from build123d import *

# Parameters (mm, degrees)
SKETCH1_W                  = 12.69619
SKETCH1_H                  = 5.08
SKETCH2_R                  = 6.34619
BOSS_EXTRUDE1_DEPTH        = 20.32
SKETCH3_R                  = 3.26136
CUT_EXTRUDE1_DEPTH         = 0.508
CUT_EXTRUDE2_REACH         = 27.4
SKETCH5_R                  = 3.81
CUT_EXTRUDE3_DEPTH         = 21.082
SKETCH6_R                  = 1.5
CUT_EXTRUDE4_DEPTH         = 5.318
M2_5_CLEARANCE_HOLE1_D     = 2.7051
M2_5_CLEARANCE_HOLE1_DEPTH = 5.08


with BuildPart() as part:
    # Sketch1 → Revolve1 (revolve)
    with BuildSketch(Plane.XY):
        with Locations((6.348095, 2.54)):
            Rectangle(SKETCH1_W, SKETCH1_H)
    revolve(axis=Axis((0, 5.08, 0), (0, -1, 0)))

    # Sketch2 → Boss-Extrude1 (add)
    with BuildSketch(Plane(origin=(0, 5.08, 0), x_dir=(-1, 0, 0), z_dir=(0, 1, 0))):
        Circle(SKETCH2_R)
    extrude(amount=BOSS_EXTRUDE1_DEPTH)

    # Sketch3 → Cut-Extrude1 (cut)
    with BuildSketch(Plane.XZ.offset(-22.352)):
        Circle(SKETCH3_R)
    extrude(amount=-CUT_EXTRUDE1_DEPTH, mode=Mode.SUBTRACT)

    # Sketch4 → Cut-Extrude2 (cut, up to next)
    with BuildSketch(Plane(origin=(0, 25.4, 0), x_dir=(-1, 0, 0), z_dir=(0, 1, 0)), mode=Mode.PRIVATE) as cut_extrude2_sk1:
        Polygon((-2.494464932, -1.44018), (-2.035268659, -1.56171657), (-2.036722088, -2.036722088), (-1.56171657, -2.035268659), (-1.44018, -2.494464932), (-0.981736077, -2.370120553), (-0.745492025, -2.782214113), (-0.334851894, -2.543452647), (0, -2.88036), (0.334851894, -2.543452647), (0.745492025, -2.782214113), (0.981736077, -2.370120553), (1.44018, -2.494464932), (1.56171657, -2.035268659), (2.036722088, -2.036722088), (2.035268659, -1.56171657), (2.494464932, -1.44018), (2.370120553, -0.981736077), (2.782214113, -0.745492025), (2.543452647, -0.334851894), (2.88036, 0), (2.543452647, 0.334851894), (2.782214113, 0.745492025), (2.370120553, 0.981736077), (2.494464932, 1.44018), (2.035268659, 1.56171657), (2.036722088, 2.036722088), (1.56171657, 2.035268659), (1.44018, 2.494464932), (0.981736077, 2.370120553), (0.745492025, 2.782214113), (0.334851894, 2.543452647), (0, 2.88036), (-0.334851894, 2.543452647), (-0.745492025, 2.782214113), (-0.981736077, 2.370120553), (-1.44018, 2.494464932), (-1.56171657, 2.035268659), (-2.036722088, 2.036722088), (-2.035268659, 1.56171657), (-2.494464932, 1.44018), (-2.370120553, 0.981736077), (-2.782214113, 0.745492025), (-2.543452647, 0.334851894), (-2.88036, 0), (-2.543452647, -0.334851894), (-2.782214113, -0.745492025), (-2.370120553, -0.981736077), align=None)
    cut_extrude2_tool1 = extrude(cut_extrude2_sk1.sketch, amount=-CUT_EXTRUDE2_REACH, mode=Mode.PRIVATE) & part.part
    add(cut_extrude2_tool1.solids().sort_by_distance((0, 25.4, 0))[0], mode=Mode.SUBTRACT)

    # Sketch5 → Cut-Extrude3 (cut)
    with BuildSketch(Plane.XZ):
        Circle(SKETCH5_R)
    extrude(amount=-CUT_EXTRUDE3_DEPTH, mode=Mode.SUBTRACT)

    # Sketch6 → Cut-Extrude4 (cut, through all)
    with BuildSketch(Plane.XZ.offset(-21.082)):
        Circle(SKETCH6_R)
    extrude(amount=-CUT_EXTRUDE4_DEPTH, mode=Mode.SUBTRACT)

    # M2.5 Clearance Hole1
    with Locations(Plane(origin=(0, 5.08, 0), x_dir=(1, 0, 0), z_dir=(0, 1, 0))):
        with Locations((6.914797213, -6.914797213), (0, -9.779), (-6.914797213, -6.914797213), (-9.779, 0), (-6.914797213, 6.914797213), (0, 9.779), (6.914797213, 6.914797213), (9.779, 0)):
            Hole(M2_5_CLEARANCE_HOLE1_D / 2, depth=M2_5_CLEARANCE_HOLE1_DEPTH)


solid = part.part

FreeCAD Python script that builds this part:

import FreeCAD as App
import Part
import Sketcher

V = App.Vector
Q = App.Units.Quantity

doc = App.newDocument("Part")
body = doc.addObject("PartDesign::Body", "Body")

sketch1 = body.newObject("Sketcher::SketchObject", "Sketch")
sketch1.AttachmentSupport = (doc.getObject("XY_Plane"), [""])
sketch1.MapMode = "FlatFace"
sketch1.addGeometry(Part.LineSegment(V(0, 5.08, 0), V(0, 0, 0)), False)
sketch1.addGeometry(Part.LineSegment(V(0, 0, 0), V(12.69619, 0, 0)), False)
sketch1.addGeometry(Part.LineSegment(V(12.69619, 0, 0), V(12.69619, 5.08, 0)), False)
sketch1.addGeometry(Part.LineSegment(V(12.69619, 5.08, 0), V(0, 5.08, 0)), False)
sketch1.addConstraint(Sketcher.Constraint("Coincident", 0, 2, 1, 1))
sketch1.addConstraint(Sketcher.Constraint("Coincident", 1, 2, 2, 1))
sketch1.addConstraint(Sketcher.Constraint("Coincident", 2, 2, 3, 1))
sketch1.addConstraint(Sketcher.Constraint("Coincident", 3, 2, 0, 1))
sketch1.addConstraint(Sketcher.Constraint("Vertical", 0))
sketch1.addConstraint(Sketcher.Constraint("Horizontal", 1))
sketch1.addConstraint(Sketcher.Constraint("Vertical", 2))
sketch1.addConstraint(Sketcher.Constraint("Horizontal", 3))
sketch1.addConstraint(Sketcher.Constraint("Coincident", 0, 2, -1, 1))
sketch1.addConstraint(Sketcher.Constraint("DistanceY", 0, 2, 0, 1, Q("0.2 in")))
sketch1.addConstraint(Sketcher.Constraint("DistanceX", 1, 1, 1, 2, Q("12.69619 mm")))
revolution = body.newObject("PartDesign::Revolution", "Revolution")
revolution.Profile = sketch1
revolution.ReferenceAxis = (sketch1, ["V_Axis"])
revolution.Angle = 360

sketch2 = body.newObject("Sketcher::SketchObject", "Sketch001")
sketch2.AttachmentSupport = (doc.getObject("XZ_Plane"), [""])
sketch2.MapMode = "FlatFace"
sketch2.AttachmentOffset = App.Placement(V(0, 0, -0.2 * 25.4), App.Rotation())
sketch2.addGeometry(Part.Circle(V(0, 0, 0), V(0, 0, 1), 6.34619), False)
sketch2.addConstraint(Sketcher.Constraint("Coincident", 0, 3, -1, 1))
sketch2.addConstraint(Sketcher.Constraint("Diameter", 0, Q("0.4997 in")))
pad1 = body.newObject("PartDesign::Pad", "Pad")
pad1.Profile = sketch2
pad1.Length = Q("0.8 in")
pad1.Reversed = True

sketch3 = body.newObject("Sketcher::SketchObject", "Sketch002")
sketch3.AttachmentSupport = (doc.getObject("XZ_Plane"), [""])
sketch3.MapMode = "FlatFace"
sketch3.AttachmentOffset = App.Placement(V(0, 0, -0.88 * 25.4), App.Rotation())
sketch3.addGeometry(Part.Circle(V(0, 0, 0), V(0, 0, 1), 3.26136), False)
sketch3.addConstraint(Sketcher.Constraint("Coincident", 0, 3, -1, 1))
sketch3.addConstraint(Sketcher.Constraint("Diameter", 0, Q("0.2568 in")))
pocket1 = body.newObject("PartDesign::Pocket", "Pocket")
pocket1.Profile = sketch3
pocket1.Length = Q("0.02 in")

sketch4 = body.newObject("Sketcher::SketchObject", "Sketch003")
sketch4.AttachmentSupport = (doc.getObject("XZ_Plane"), [""])
sketch4.MapMode = "FlatFace"
sketch4.AttachmentOffset = App.Placement(V(0, 0, -1 * 25.4), App.Rotation())
sketch4.addGeometry(Part.LineSegment(V(2.494465, -1.44018, 0), V(2.035269, -1.561717, 0)), False)
sketch4.addGeometry(Part.LineSegment(V(2.035269, -1.561717, 0), V(2.036722, -2.036722, 0)), False)
sketch4.addGeometry(Part.LineSegment(V(2.036722, -2.036722, 0), V(1.561717, -2.035269, 0)), False)
sketch4.addGeometry(Part.LineSegment(V(1.561717, -2.035269, 0), V(1.44018, -2.494465, 0)), False)
sketch4.addGeometry(Part.LineSegment(V(1.44018, -2.494465, 0), V(0.981736, -2.370121, 0)), False)
sketch4.addGeometry(Part.LineSegment(V(0.981736, -2.370121, 0), V(0.745492, -2.782214, 0)), False)
sketch4.addGeometry(Part.LineSegment(V(0.745492, -2.782214, 0), V(0.334852, -2.543453, 0)), False)
sketch4.addGeometry(Part.LineSegment(V(0.334852, -2.543453, 0), V(0, -2.88036, 0)), False)
sketch4.addGeometry(Part.LineSegment(V(0, -2.88036, 0), V(-0.334852, -2.543453, 0)), False)
sketch4.addGeometry(Part.LineSegment(V(-0.334852, -2.543453, 0), V(-0.745492, -2.782214, 0)), False)
sketch4.addGeometry(Part.LineSegment(V(-0.745492, -2.782214, 0), V(-0.981736, -2.370121, 0)), False)
sketch4.addGeometry(Part.LineSegment(V(-0.981736, -2.370121, 0), V(-1.44018, -2.494465, 0)), False)
sketch4.addGeometry(Part.LineSegment(V(-1.44018, -2.494465, 0), V(-1.561717, -2.035269, 0)), False)
sketch4.addGeometry(Part.LineSegment(V(-1.561717, -2.035269, 0), V(-2.036722, -2.036722, 0)), False)
sketch4.addGeometry(Part.LineSegment(V(-2.036722, -2.036722, 0), V(-2.035269, -1.561717, 0)), False)
sketch4.addGeometry(Part.LineSegment(V(-2.035269, -1.561717, 0), V(-2.494465, -1.44018, 0)), False)
sketch4.addGeometry(Part.LineSegment(V(-2.494465, -1.44018, 0), V(-2.370121, -0.981736, 0)), False)
sketch4.addGeometry(Part.LineSegment(V(-2.370121, -0.981736, 0), V(-2.782214, -0.745492, 0)), False)
sketch4.addGeometry(Part.LineSegment(V(-2.782214, -0.745492, 0), V(-2.543453, -0.334852, 0)), False)
sketch4.addGeometry(Part.LineSegment(V(-2.543453, -0.334852, 0), V(-2.88036, 0, 0)), False)
sketch4.addGeometry(Part.LineSegment(V(-2.88036, 0, 0), V(-2.543453, 0.334852, 0)), False)
sketch4.addGeometry(Part.LineSegment(V(-2.543453, 0.334852, 0), V(-2.782214, 0.745492, 0)), False)
sketch4.addGeometry(Part.LineSegment(V(-2.782214, 0.745492, 0), V(-2.370121, 0.981736, 0)), False)
sketch4.addGeometry(Part.LineSegment(V(-2.370121, 0.981736, 0), V(-2.494465, 1.44018, 0)), False)
sketch4.addGeometry(Part.LineSegment(V(-2.494465, 1.44018, 0), V(-2.035269, 1.561717, 0)), False)
sketch4.addGeometry(Part.LineSegment(V(-2.035269, 1.561717, 0), V(-2.036722, 2.036722, 0)), False)
sketch4.addGeometry(Part.LineSegment(V(-2.036722, 2.036722, 0), V(-1.561717, 2.035269, 0)), False)
sketch4.addGeometry(Part.LineSegment(V(-1.561717, 2.035269, 0), V(-1.44018, 2.494465, 0)), False)
sketch4.addGeometry(Part.LineSegment(V(-1.44018, 2.494465, 0), V(-0.981736, 2.370121, 0)), False)
sketch4.addGeometry(Part.LineSegment(V(-0.981736, 2.370121, 0), V(-0.745492, 2.782214, 0)), False)
sketch4.addGeometry(Part.LineSegment(V(-0.745492, 2.782214, 0), V(-0.334852, 2.543453, 0)), False)
sketch4.addGeometry(Part.LineSegment(V(-0.334852, 2.543453, 0), V(0, 2.88036, 0)), False)
sketch4.addGeometry(Part.LineSegment(V(0, 2.88036, 0), V(0.334852, 2.543453, 0)), False)
sketch4.addGeometry(Part.LineSegment(V(0.334852, 2.543453, 0), V(0.745492, 2.782214, 0)), False)
sketch4.addGeometry(Part.LineSegment(V(0.745492, 2.782214, 0), V(0.981736, 2.370121, 0)), False)
sketch4.addGeometry(Part.LineSegment(V(0.981736, 2.370121, 0), V(1.44018, 2.494465, 0)), False)
sketch4.addGeometry(Part.LineSegment(V(1.44018, 2.494465, 0), V(1.561717, 2.035269, 0)), False)
sketch4.addGeometry(Part.LineSegment(V(1.561717, 2.035269, 0), V(2.036722, 2.036722, 0)), False)
sketch4.addGeometry(Part.LineSegment(V(2.036722, 2.036722, 0), V(2.035269, 1.561717, 0)), False)
sketch4.addGeometry(Part.LineSegment(V(2.035269, 1.561717, 0), V(2.494465, 1.44018, 0)), False)
sketch4.addGeometry(Part.LineSegment(V(2.494465, 1.44018, 0), V(2.370121, 0.981736, 0)), False)
sketch4.addGeometry(Part.LineSegment(V(2.370121, 0.981736, 0), V(2.782214, 0.745492, 0)), False)
sketch4.addGeometry(Part.LineSegment(V(2.782214, 0.745492, 0), V(2.543453, 0.334852, 0)), False)
sketch4.addGeometry(Part.LineSegment(V(2.543453, 0.334852, 0), V(2.88036, 0, 0)), False)
sketch4.addGeometry(Part.LineSegment(V(2.88036, 0, 0), V(2.543453, -0.334852, 0)), False)
sketch4.addGeometry(Part.LineSegment(V(2.543453, -0.334852, 0), V(2.782214, -0.745492, 0)), False)
sketch4.addGeometry(Part.LineSegment(V(2.782214, -0.745492, 0), V(2.370121, -0.981736, 0)), False)
sketch4.addGeometry(Part.LineSegment(V(2.370121, -0.981736, 0), V(2.494465, -1.44018, 0)), False)
sketch4.addConstraint(Sketcher.Constraint("Coincident", 0, 2, 1, 1))
sketch4.addConstraint(Sketcher.Constraint("Coincident", 1, 2, 2, 1))
sketch4.addConstraint(Sketcher.Constraint("Coincident", 2, 2, 3, 1))
sketch4.addConstraint(Sketcher.Constraint("Coincident", 3, 2, 4, 1))
sketch4.addConstraint(Sketcher.Constraint("Coincident", 4, 2, 5, 1))
sketch4.addConstraint(Sketcher.Constraint("Coincident", 5, 2, 6, 1))
sketch4.addConstraint(Sketcher.Constraint("Coincident", 6, 2, 7, 1))
sketch4.addConstraint(Sketcher.Constraint("Coincident", 7, 2, 8, 1))
sketch4.addConstraint(Sketcher.Constraint("Coincident", 8, 2, 9, 1))
sketch4.addConstraint(Sketcher.Constraint("Coincident", 9, 2, 10, 1))
sketch4.addConstraint(Sketcher.Constraint("Coincident", 10, 2, 11, 1))
sketch4.addConstraint(Sketcher.Constraint("Coincident", 11, 2, 12, 1))
sketch4.addConstraint(Sketcher.Constraint("Coincident", 12, 2, 13, 1))
sketch4.addConstraint(Sketcher.Constraint("Coincident", 13, 2, 14, 1))
sketch4.addConstraint(Sketcher.Constraint("Coincident", 14, 2, 15, 1))
sketch4.addConstraint(Sketcher.Constraint("Coincident", 15, 2, 16, 1))
sketch4.addConstraint(Sketcher.Constraint("Coincident", 16, 2, 17, 1))
sketch4.addConstraint(Sketcher.Constraint("Coincident", 17, 2, 18, 1))
sketch4.addConstraint(Sketcher.Constraint("Coincident", 18, 2, 19, 1))
sketch4.addConstraint(Sketcher.Constraint("Coincident", 19, 2, 20, 1))
sketch4.addConstraint(Sketcher.Constraint("Coincident", 20, 2, 21, 1))
sketch4.addConstraint(Sketcher.Constraint("Coincident", 21, 2, 22, 1))
sketch4.addConstraint(Sketcher.Constraint("Coincident", 22, 2, 23, 1))
sketch4.addConstraint(Sketcher.Constraint("Coincident", 23, 2, 24, 1))
sketch4.addConstraint(Sketcher.Constraint("Coincident", 24, 2, 25, 1))
sketch4.addConstraint(Sketcher.Constraint("Coincident", 25, 2, 26, 1))
sketch4.addConstraint(Sketcher.Constraint("Coincident", 26, 2, 27, 1))
sketch4.addConstraint(Sketcher.Constraint("Coincident", 27, 2, 28, 1))
sketch4.addConstraint(Sketcher.Constraint("Coincident", 28, 2, 29, 1))
sketch4.addConstraint(Sketcher.Constraint("Coincident", 29, 2, 30, 1))
sketch4.addConstraint(Sketcher.Constraint("Coincident", 30, 2, 31, 1))
sketch4.addConstraint(Sketcher.Constraint("Coincident", 31, 2, 32, 1))
sketch4.addConstraint(Sketcher.Constraint("Coincident", 32, 2, 33, 1))
sketch4.addConstraint(Sketcher.Constraint("Coincident", 33, 2, 34, 1))
sketch4.addConstraint(Sketcher.Constraint("Coincident", 34, 2, 35, 1))
sketch4.addConstraint(Sketcher.Constraint("Coincident", 35, 2, 36, 1))
sketch4.addConstraint(Sketcher.Constraint("Coincident", 36, 2, 37, 1))
sketch4.addConstraint(Sketcher.Constraint("Coincident", 37, 2, 38, 1))
sketch4.addConstraint(Sketcher.Constraint("Coincident", 38, 2, 39, 1))
sketch4.addConstraint(Sketcher.Constraint("Coincident", 39, 2, 40, 1))
sketch4.addConstraint(Sketcher.Constraint("Coincident", 40, 2, 41, 1))
sketch4.addConstraint(Sketcher.Constraint("Coincident", 41, 2, 42, 1))
sketch4.addConstraint(Sketcher.Constraint("Coincident", 42, 2, 43, 1))
sketch4.addConstraint(Sketcher.Constraint("Coincident", 43, 2, 44, 1))
sketch4.addConstraint(Sketcher.Constraint("Coincident", 44, 2, 45, 1))
sketch4.addConstraint(Sketcher.Constraint("Coincident", 45, 2, 46, 1))
sketch4.addConstraint(Sketcher.Constraint("Coincident", 46, 2, 47, 1))
sketch4.addConstraint(Sketcher.Constraint("Coincident", 47, 2, 0, 1))
sketch4.addConstraint(Sketcher.Constraint("Symmetric", 0, 2, 24, 2, -1, 1))
sketch4.addConstraint(Sketcher.Constraint("Symmetric", 1, 2, 25, 2, -1, 1))
sketch4.addConstraint(Sketcher.Constraint("Symmetric", 2, 2, 26, 2, -1, 1))
sketch4.addConstraint(Sketcher.Constraint("Symmetric", 3, 2, 27, 2, -1, 1))
sketch4.addConstraint(Sketcher.Constraint("Symmetric", 4, 2, 28, 2, -1, 1))
sketch4.addConstraint(Sketcher.Constraint("Symmetric", 5, 2, 29, 2, -1, 1))
sketch4.addConstraint(Sketcher.Constraint("Symmetric", 6, 2, 30, 2, -1, 1))
sketch4.addConstraint(Sketcher.Constraint("Symmetric", 7, 2, 31, 2, -1, 1))
sketch4.addConstraint(Sketcher.Constraint("Symmetric", 8, 2, 32, 2, -1, 1))
sketch4.addConstraint(Sketcher.Constraint("Symmetric", 9, 2, 33, 2, -1, 1))
sketch4.addConstraint(Sketcher.Constraint("Symmetric", 10, 2, 34, 2, -1, 1))
sketch4.addConstraint(Sketcher.Constraint("Symmetric", 11, 2, 35, 2, -1, 1))
sketch4.addConstraint(Sketcher.Constraint("Symmetric", 12, 2, 36, 2, -1, 1))
sketch4.addConstraint(Sketcher.Constraint("Symmetric", 13, 2, 37, 2, -1, 1))
sketch4.addConstraint(Sketcher.Constraint("Symmetric", 14, 2, 38, 2, -1, 1))
sketch4.addConstraint(Sketcher.Constraint("Symmetric", 15, 2, 39, 2, -1, 1))
sketch4.addConstraint(Sketcher.Constraint("Symmetric", 16, 2, 40, 2, -1, 1))
sketch4.addConstraint(Sketcher.Constraint("Symmetric", 17, 2, 41, 2, -1, 1))
sketch4.addConstraint(Sketcher.Constraint("Symmetric", 18, 2, 42, 2, -1, 1))
sketch4.addConstraint(Sketcher.Constraint("Symmetric", 19, 2, 43, 2, -1, 1))
sketch4.addConstraint(Sketcher.Constraint("Symmetric", 20, 2, 44, 2, -1, 1))
sketch4.addConstraint(Sketcher.Constraint("Symmetric", 21, 2, 45, 2, -1, 1))
sketch4.addConstraint(Sketcher.Constraint("Symmetric", 22, 2, 46, 2, -1, 1))
sketch4.addConstraint(Sketcher.Constraint("Symmetric", 23, 2, 47, 2, -1, 1))
sketch4.addConstraint(Sketcher.Constraint("Symmetric", 6, 2, 8, 2, -2))
sketch4.addConstraint(Sketcher.Constraint("Symmetric", 5, 2, 9, 2, -2))
sketch4.addConstraint(Sketcher.Constraint("Symmetric", 4, 2, 10, 2, -2))
sketch4.addConstraint(Sketcher.Constraint("Symmetric", 3, 2, 11, 2, -2))
sketch4.addConstraint(Sketcher.Constraint("Symmetric", 2, 2, 12, 2, -2))
sketch4.addConstraint(Sketcher.Constraint("Symmetric", 1, 2, 13, 2, -2))
sketch4.addConstraint(Sketcher.Constraint("Symmetric", 0, 2, 14, 2, -2))
sketch4.addConstraint(Sketcher.Constraint("Symmetric", 23, 2, 39, 2, -2))
sketch4.addConstraint(Sketcher.Constraint("Symmetric", 22, 2, 40, 2, -2))
sketch4.addConstraint(Sketcher.Constraint("Symmetric", 21, 2, 41, 2, -2))
sketch4.addConstraint(Sketcher.Constraint("Symmetric", 20, 2, 42, 2, -2))
sketch4.addConstraint(Sketcher.Constraint("PointOnObject", 7, 2, -2))
sketch4.addConstraint(Sketcher.Constraint("PointOnObject", 19, 2, -1))
sketch4.addConstraint(Sketcher.Constraint("Perpendicular", 0, 12))
sketch4.addConstraint(Sketcher.Constraint("Perpendicular", 1, 13))
sketch4.addConstraint(Sketcher.Constraint("Perpendicular", 4, 16))
sketch4.addConstraint(Sketcher.Constraint("Perpendicular", 5, 17))
sketch4.addConstraint(Sketcher.Constraint("Perpendicular", 6, 18))
sketch4.addConstraint(Sketcher.Constraint("Perpendicular", 7, 19))
sketch4.addConstraint(Sketcher.Constraint("Equal", 0, 1))
sketch4.addConstraint(Sketcher.Constraint("Equal", 1, 2))
sketch4.addConstraint(Sketcher.Constraint("Equal", 2, 3))
sketch4.addConstraint(Sketcher.Constraint("Equal", 3, 4))
sketch4.addConstraint(Sketcher.Constraint("Equal", 4, 5))
sketch4.addConstraint(Sketcher.Constraint("Equal", 5, 6))
sketch4.addConstraint(Sketcher.Constraint("Equal", 6, 7))
sketch4.addConstraint(Sketcher.Constraint("Equal", 15, 16))
sketch4.addConstraint(Sketcher.Constraint("Equal", 16, 17))
sketch4.addConstraint(Sketcher.Constraint("Equal", 17, 18))
sketch4.addConstraint(Sketcher.Constraint("Equal", 18, 19))
sketch4.addConstraint(Sketcher.Constraint("DistanceX", -1, 1, 3, 2, Q("0.0567 in")))
sketch4.addConstraint(Sketcher.Constraint("DistanceY", 7, 2, -1, 1, Q("0.1134 in")))
sketch4.addConstraint(Sketcher.Constraint("DistanceY", 5, 2, 6, 2, Q("0.0094001 in")))
sketch4.addConstraint(Sketcher.Constraint("DistanceX", 9, 2, 5, 2, Q("0.0587002 in")))
sketch4.addConstraint(Sketcher.Constraint("DistanceY", 4, 2, 1, 2, Q("0.333398 mm")))
sketch4.addConstraint(Sketcher.Constraint("DistanceX", -1, 1, 0, 2, Q("2.035269 mm")))
sketch4.addConstraint(Sketcher.Constraint("DistanceY", 4, 2, -1, 1, Q("2.370121 mm")))
pocket2 = body.newObject("PartDesign::Pocket", "Pocket001")
pocket2.Profile = sketch4
pocket2.Type = "UpToFirst"
pocket2.Reversed = True

sketch5 = body.newObject("Sketcher::SketchObject", "Sketch004")
sketch5.AttachmentSupport = (doc.getObject("XZ_Plane"), [""])
sketch5.MapMode = "FlatFace"
sketch5.addGeometry(Part.Circle(V(0, 0, 0), V(0, 0, 1), 3.81), False)
sketch5.addConstraint(Sketcher.Constraint("Coincident", 0, 3, -1, 1))
sketch5.addConstraint(Sketcher.Constraint("Diameter", 0, Q("0.3 in")))
pocket3 = body.newObject("PartDesign::Pocket", "Pocket002")
pocket3.Profile = sketch5
pocket3.Length = Q("0.83 in")

sketch6 = body.newObject("Sketcher::SketchObject", "Sketch005")
sketch6.AttachmentSupport = (doc.getObject("XZ_Plane"), [""])
sketch6.MapMode = "FlatFace"
sketch6.AttachmentOffset = App.Placement(V(0, 0, -0.83 * 25.4), App.Rotation())
sketch6.addGeometry(Part.Circle(V(0, 0, 0), V(0, 0, 1), 1.5), False)
sketch6.addConstraint(Sketcher.Constraint("Coincident", 0, 3, -1, 1))
sketch6.addConstraint(Sketcher.Constraint("Diameter", 0, Q("3 mm")))
pocket4 = body.newObject("PartDesign::Pocket", "Pocket003")
pocket4.Profile = sketch6
pocket4.Type = "ThroughAll"

sketch7 = body.newObject("Sketcher::SketchObject", "Sketch006")
sketch7.AttachmentSupport = (doc.getObject("XZ_Plane"), [""])
sketch7.MapMode = "FlatFace"
sketch7.AttachmentOffset = App.Placement(V(0, 0, -0.2 * 25.4), App.Rotation())
sketch7.addGeometry(Part.Circle(V(6.914797, 6.914797, 0), V(0, 0, 1), 1.35255), False)
sketch7.addGeometry(Part.Circle(V(0, 9.779, 0), V(0, 0, 1), 1.35255), False)
sketch7.addGeometry(Part.Circle(V(-6.914797, 6.914797, 0), V(0, 0, 1), 1.35255), False)
sketch7.addGeometry(Part.Circle(V(-9.779, 0, 0), V(0, 0, 1), 1.35255), False)
sketch7.addGeometry(Part.Circle(V(-6.914797, -6.914797, 0), V(0, 0, 1), 1.35255), False)
sketch7.addGeometry(Part.Circle(V(0, -9.779, 0), V(0, 0, 1), 1.35255), False)
sketch7.addGeometry(Part.Circle(V(6.914797, -6.914797, 0), V(0, 0, 1), 1.35255), False)
sketch7.addGeometry(Part.Circle(V(9.779, 0, 0), V(0, 0, 1), 1.35255), False)
sketch7.addConstraint(Sketcher.Constraint("Equal", 0, 1))
sketch7.addConstraint(Sketcher.Constraint("Equal", 1, 2))
sketch7.addConstraint(Sketcher.Constraint("Equal", 2, 3))
sketch7.addConstraint(Sketcher.Constraint("Equal", 3, 4))
sketch7.addConstraint(Sketcher.Constraint("Equal", 4, 5))
sketch7.addConstraint(Sketcher.Constraint("Equal", 5, 6))
sketch7.addConstraint(Sketcher.Constraint("Equal", 6, 7))
sketch7.addConstraint(Sketcher.Constraint("Symmetric", 0, 3, 4, 3, -1, 1))
sketch7.addConstraint(Sketcher.Constraint("Symmetric", 1, 3, 5, 3, -1, 1))
sketch7.addConstraint(Sketcher.Constraint("Symmetric", 2, 3, 6, 3, -1, 1))
sketch7.addConstraint(Sketcher.Constraint("Symmetric", 3, 3, 7, 3, -1, 1))
sketch7.addConstraint(Sketcher.Constraint("Symmetric", 0, 3, 2, 3, -2))
sketch7.addConstraint(Sketcher.Constraint("PointOnObject", 1, 3, -2))
sketch7.addConstraint(Sketcher.Constraint("PointOnObject", 3, 3, -1))
sketch7.addConstraint(Sketcher.Constraint("Diameter", 0, Q("0.1065 in")))
sketch7.addConstraint(Sketcher.Constraint("DistanceY", 5, 3, 1, 3, Q("0.77 in")))
sketch7.addConstraint(Sketcher.Constraint("DistanceX", 3, 3, -1, 1, Q("0.385 in")))
sketch7.addConstraint(Sketcher.Constraint("DistanceX", -1, 1, 0, 3, Q("6.914797 mm")))
sketch7.addConstraint(Sketcher.Constraint("DistanceY", -1, 1, 0, 3, Q("6.914797 mm")))
doc.recompute()
hole = body.newObject("PartDesign::Hole", "Hole")
hole.Profile = sketch7
hole.ThreadType = "None"
hole.Diameter = Q("0.1065 in")
hole.DepthType = "Dimension"
hole.Depth = Q("0.2 in")
hole.DrillPoint = "Flat"
hole.Reversed = True

doc.recompute()
